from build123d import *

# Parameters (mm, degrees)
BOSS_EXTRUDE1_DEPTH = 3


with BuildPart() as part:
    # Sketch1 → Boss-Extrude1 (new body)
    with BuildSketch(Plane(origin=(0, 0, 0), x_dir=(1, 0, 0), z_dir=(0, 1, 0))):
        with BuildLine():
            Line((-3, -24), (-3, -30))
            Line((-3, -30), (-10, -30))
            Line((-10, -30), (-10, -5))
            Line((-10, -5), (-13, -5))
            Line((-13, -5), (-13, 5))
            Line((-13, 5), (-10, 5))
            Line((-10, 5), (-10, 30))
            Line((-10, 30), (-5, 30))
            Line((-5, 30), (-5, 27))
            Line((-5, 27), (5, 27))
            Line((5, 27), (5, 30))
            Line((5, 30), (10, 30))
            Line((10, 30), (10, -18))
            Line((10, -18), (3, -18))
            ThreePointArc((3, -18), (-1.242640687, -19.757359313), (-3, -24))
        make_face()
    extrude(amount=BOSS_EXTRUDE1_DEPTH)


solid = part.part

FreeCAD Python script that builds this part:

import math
import FreeCAD as App
import Part
import Sketcher

doc = App.newDocument("Part")
body = doc.addObject("PartDesign::Body", "Body")

# Sketch on XZ plane
sketch1 = body.newObject("Sketcher::SketchObject", "Sketch")
sketch1.AttachmentSupport = (doc.getObject("XZ_Plane"), [""])
sketch1.MapMode = "FlatFace"
sketch1.addGeometry(Part.LineSegment(App.Vector(-3, 30, 0), App.Vector(-3, 24, 0)), False)
sketch1.addGeometry(Part.ArcOfCircle(Part.Circle(App.Vector(3, 24, 0), App.Vector(0, 0, 1), 6), math.radians(180), math.radians(270)), False)
sketch1.addGeometry(Part.LineSegment(App.Vector(3, 18, 0), App.Vector(10, 18, 0)), False)
sketch1.addGeometry(Part.LineSegment(App.Vector(10, 18, 0), App.Vector(10, -30, 0)), False)
sketch1.addGeometry(Part.LineSegment(App.Vector(10, -30, 0), App.Vector(5, -30, 0)), False)
sketch1.addGeometry(Part.LineSegment(App.Vector(5, -30, 0), App.Vector(5, -27, 0)), False)
sketch1.addGeometry(Part.LineSegment(App.Vector(5, -27, 0), App.Vector(-5, -27, 0)), False)
sketch1.addGeometry(Part.LineSegment(App.Vector(-5, -27, 0), App.Vector(-5, -30, 0)), False)
sketch1.addGeometry(Part.LineSegment(App.Vector(-5, -30, 0), App.Vector(-10, -30, 0)), False)
sketch1.addGeometry(Part.LineSegment(App.Vector(-10, -30, 0), App.Vector(-10, -5, 0)), False)
sketch1.addGeometry(Part.LineSegment(App.Vector(-10, -5, 0), App.Vector(-13, -5, 0)), False)
sketch1.addGeometry(Part.LineSegment(App.Vector(-13, -5, 0), App.Vector(-13, 5, 0)), False)
sketch1.addGeometry(Part.LineSegment(App.Vector(-13, 5, 0), App.Vector(-10, 5, 0)), False)
sketch1.addGeometry(Part.LineSegment(App.Vector(-10, 5, 0), App.Vector(-10, 30, 0)), False)
sketch1.addGeometry(Part.LineSegment(App.Vector(-10, 30, 0), App.Vector(-3, 30, 0)), False)
sketch1.addConstraint(Sketcher.Constraint("Tangent", 0, 2, 1, 1))
sketch1.addConstraint(Sketcher.Constraint("Tangent", 1, 2, 2, 1))
sketch1.addConstraint(Sketcher.Constraint("Coincident", 2, 2, 3, 1))
sketch1.addConstraint(Sketcher.Constraint("Coincident", 3, 2, 4, 1))
sketch1.addConstraint(Sketcher.Constraint("Coincident", 4, 2, 5, 1))
sketch1.addConstraint(Sketcher.Constraint("Coincident", 5, 2, 6, 1))
sketch1.addConstraint(Sketcher.Constraint("Coincident", 6, 2, 7, 1))
sketch1.addConstraint(Sketcher.Constraint("Coincident", 7, 2, 8, 1))
sketch1.addConstraint(Sketcher.Constraint("Coincident", 8, 2, 9, 1))
sketch1.addConstraint(Sketcher.Constraint("Coincident", 9, 2, 10, 1))
sketch1.addConstraint(Sketcher.Constraint("Coincident", 10, 2, 11, 1))
sketch1.addConstraint(Sketcher.Constraint("Coincident", 11, 2, 12, 1))
sketch1.addConstraint(Sketcher.Constraint("Coincident", 12, 2, 13, 1))
sketch1.addConstraint(Sketcher.Constraint("Coincident", 13, 2, 14, 1))
sketch1.addConstraint(Sketcher.Constraint("Coincident", 14, 2, 0, 1))
sketch1.addConstraint(Sketcher.Constraint("Vertical", 0))
sketch1.addConstraint(Sketcher.Constraint("Horizontal", 2))
sketch1.addConstraint(Sketcher.Constraint("Vertical", 3))
sketch1.addConstraint(Sketcher.Constraint("Horizontal", 4))
sketch1.addConstraint(Sketcher.Constraint("Vertical", 5))
sketch1.addConstraint(Sketcher.Constraint("Horizontal", 6))
sketch1.addConstraint(Sketcher.Constraint("Vertical", 7))
sketch1.addConstraint(Sketcher.Constraint("Horizontal", 8))
sketch1.addConstraint(Sketcher.Constraint("Vertical", 9))
sketch1.addConstraint(Sketcher.Constraint("Horizontal", 10))
sketch1.addConstraint(Sketcher.Constraint("Vertical", 11))
sketch1.addConstraint(Sketcher.Constraint("Horizontal", 12))
sketch1.addConstraint(Sketcher.Constraint("Vertical", 13))
sketch1.addConstraint(Sketcher.Constraint("Horizontal", 14))
sketch1.addConstraint(Sketcher.Constraint("Symmetric", 3, 2, 13, 2, -1, 1))
sketch1.addConstraint(Sketcher.Constraint("Symmetric", 4, 2, 7, 2, -2))
sketch1.addConstraint(Sketcher.Constraint("Symmetric", 9, 2, 12, 2, -1))
sketch1.addConstraint(Sketcher.Constraint("Equal", 2, 14))
sketch1.addConstraint(Sketcher.Constraint("Equal", 12, 5))
sketch1.addConstraint(Sketcher.Constraint("Equal", 6, 11))
sketch1.addConstraint(Sketcher.Constraint("Radius", 1, 6.0))
sketch1.addConstraint(Sketcher.Constraint("DistanceX", 2, 1, 2, 2, 7.0))
sketch1.addConstraint(Sketcher.Constraint("DistanceX", 4, 2, 4, 1, 5.0))
sketch1.addConstraint(Sketcher.Constraint("DistanceX", 10, 2, 10, 1, 3.0))
sketch1.addConstraint(Sketcher.Constraint("DistanceY", 0, 2, 0, 1, 6.0))
sketch1.addConstraint(Sketcher.Constraint("DistanceY", 3, 2, 3, 1, 48.0))
pad1 = body.newObject("PartDesign::Pad", "Pad")
pad1.Profile = sketch1
pad1.Length = 3
pad1.Reversed = True

doc.recompute()
